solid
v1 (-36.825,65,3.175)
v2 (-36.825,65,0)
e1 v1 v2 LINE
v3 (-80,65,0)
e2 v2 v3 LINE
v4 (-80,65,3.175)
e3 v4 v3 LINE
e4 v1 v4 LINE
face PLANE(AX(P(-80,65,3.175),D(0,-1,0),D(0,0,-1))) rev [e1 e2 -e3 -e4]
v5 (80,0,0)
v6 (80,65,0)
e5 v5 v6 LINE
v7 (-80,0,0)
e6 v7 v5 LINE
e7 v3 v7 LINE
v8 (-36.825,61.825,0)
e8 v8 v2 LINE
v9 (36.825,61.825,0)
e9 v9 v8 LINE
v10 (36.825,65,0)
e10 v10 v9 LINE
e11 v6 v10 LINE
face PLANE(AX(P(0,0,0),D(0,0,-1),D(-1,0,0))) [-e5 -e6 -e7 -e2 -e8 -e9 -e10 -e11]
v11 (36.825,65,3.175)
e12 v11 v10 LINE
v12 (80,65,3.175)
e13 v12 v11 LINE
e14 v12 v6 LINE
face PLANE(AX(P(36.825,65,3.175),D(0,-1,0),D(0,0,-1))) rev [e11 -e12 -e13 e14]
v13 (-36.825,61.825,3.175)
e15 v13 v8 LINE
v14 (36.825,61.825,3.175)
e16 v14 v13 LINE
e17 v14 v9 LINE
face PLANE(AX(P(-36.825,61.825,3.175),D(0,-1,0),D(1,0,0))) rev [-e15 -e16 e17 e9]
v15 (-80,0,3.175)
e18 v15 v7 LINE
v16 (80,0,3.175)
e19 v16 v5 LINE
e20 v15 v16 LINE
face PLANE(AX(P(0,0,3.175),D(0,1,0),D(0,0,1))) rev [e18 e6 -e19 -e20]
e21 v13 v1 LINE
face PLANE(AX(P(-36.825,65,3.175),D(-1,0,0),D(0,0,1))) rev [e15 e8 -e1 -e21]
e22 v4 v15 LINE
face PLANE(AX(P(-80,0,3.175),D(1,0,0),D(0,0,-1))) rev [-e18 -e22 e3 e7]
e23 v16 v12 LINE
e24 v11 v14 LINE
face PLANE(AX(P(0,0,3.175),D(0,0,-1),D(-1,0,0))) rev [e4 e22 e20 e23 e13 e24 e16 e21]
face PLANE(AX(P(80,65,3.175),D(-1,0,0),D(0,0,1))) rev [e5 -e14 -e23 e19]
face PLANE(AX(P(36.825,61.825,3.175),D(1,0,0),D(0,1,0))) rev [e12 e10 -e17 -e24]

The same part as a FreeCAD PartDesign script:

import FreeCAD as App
import Part
import Sketcher

V = App.Vector

doc = App.newDocument("Part")
body = doc.addObject("PartDesign::Body", "Body")

sketch1 = body.newObject("Sketcher::SketchObject", "Sketch")
sketch1.AttachmentSupport = (doc.getObject("XY_Plane"), [""])
sketch1.MapMode = "FlatFace"
sketch1.addGeometry([
    Part.LineSegment(V(80, 0, 0), V(80, 65, 0)),
    Part.LineSegment(V(80, 65, 0), V(36.8, 65, 0)),
    Part.LineSegment(V(36.8, 65, 0), V(36.8, 61.8, 0)),
    Part.LineSegment(V(36.8, 61.8, 0), V(-36.8, 61.8, 0)),
    Part.LineSegment(V(-36.8, 61.8, 0), V(-36.8, 65, 0)),
    Part.LineSegment(V(-36.8, 65, 0), V(-80, 65, 0)),
    Part.LineSegment(V(-80, 65, 0), V(-80, 0, 0)),
    Part.LineSegment(V(-80, 0, 0), V(80, 0, 0)),
], False)
sketch1.addConstraint([
    Sketcher.Constraint("Coincident", 0, 2, 1, 1),
    Sketcher.Constraint("Coincident", 1, 2, 2, 1),
    Sketcher.Constraint("Coincident", 2, 2, 3, 1),
    Sketcher.Constraint("Coincident", 3, 2, 4, 1),
    Sketcher.Constraint("Coincident", 4, 2, 5, 1),
    Sketcher.Constraint("Coincident", 5, 2, 6, 1),
    Sketcher.Constraint("Coincident", 6, 2, 7, 1),
    Sketcher.Constraint("Coincident", 7, 2, 0, 1),
    Sketcher.Constraint("Vertical", 0),
    Sketcher.Constraint("Horizontal", 1),
    Sketcher.Constraint("Vertical", 2),
    Sketcher.Constraint("Horizontal", 3),
    Sketcher.Constraint("Vertical", 4),
    Sketcher.Constraint("Horizontal", 5),
    Sketcher.Constraint("Vertical", 6),
    Sketcher.Constraint("Horizontal", 7),
    Sketcher.Constraint("Symmetric", 6, 2, 7, 2, -1, 1),
    Sketcher.Constraint("Symmetric", 1, 2, 4, 2, -2),
    Sketcher.Constraint("DistanceX", 7, 1, 7, 2, 160.0),
    Sketcher.Constraint("DistanceY", 0, 1, 0, 2, 65.0),
    Sketcher.Constraint("DistanceX", 3, 2, 3, 1, 73.65),
    Sketcher.Constraint("DistanceY", 2, 2, 2, 1, 3.175),
])
pad1 = body.newObject("PartDesign::Pad", "Pad")
pad1.Profile = sketch1
pad1.Length = 3.175

doc.recompute()
